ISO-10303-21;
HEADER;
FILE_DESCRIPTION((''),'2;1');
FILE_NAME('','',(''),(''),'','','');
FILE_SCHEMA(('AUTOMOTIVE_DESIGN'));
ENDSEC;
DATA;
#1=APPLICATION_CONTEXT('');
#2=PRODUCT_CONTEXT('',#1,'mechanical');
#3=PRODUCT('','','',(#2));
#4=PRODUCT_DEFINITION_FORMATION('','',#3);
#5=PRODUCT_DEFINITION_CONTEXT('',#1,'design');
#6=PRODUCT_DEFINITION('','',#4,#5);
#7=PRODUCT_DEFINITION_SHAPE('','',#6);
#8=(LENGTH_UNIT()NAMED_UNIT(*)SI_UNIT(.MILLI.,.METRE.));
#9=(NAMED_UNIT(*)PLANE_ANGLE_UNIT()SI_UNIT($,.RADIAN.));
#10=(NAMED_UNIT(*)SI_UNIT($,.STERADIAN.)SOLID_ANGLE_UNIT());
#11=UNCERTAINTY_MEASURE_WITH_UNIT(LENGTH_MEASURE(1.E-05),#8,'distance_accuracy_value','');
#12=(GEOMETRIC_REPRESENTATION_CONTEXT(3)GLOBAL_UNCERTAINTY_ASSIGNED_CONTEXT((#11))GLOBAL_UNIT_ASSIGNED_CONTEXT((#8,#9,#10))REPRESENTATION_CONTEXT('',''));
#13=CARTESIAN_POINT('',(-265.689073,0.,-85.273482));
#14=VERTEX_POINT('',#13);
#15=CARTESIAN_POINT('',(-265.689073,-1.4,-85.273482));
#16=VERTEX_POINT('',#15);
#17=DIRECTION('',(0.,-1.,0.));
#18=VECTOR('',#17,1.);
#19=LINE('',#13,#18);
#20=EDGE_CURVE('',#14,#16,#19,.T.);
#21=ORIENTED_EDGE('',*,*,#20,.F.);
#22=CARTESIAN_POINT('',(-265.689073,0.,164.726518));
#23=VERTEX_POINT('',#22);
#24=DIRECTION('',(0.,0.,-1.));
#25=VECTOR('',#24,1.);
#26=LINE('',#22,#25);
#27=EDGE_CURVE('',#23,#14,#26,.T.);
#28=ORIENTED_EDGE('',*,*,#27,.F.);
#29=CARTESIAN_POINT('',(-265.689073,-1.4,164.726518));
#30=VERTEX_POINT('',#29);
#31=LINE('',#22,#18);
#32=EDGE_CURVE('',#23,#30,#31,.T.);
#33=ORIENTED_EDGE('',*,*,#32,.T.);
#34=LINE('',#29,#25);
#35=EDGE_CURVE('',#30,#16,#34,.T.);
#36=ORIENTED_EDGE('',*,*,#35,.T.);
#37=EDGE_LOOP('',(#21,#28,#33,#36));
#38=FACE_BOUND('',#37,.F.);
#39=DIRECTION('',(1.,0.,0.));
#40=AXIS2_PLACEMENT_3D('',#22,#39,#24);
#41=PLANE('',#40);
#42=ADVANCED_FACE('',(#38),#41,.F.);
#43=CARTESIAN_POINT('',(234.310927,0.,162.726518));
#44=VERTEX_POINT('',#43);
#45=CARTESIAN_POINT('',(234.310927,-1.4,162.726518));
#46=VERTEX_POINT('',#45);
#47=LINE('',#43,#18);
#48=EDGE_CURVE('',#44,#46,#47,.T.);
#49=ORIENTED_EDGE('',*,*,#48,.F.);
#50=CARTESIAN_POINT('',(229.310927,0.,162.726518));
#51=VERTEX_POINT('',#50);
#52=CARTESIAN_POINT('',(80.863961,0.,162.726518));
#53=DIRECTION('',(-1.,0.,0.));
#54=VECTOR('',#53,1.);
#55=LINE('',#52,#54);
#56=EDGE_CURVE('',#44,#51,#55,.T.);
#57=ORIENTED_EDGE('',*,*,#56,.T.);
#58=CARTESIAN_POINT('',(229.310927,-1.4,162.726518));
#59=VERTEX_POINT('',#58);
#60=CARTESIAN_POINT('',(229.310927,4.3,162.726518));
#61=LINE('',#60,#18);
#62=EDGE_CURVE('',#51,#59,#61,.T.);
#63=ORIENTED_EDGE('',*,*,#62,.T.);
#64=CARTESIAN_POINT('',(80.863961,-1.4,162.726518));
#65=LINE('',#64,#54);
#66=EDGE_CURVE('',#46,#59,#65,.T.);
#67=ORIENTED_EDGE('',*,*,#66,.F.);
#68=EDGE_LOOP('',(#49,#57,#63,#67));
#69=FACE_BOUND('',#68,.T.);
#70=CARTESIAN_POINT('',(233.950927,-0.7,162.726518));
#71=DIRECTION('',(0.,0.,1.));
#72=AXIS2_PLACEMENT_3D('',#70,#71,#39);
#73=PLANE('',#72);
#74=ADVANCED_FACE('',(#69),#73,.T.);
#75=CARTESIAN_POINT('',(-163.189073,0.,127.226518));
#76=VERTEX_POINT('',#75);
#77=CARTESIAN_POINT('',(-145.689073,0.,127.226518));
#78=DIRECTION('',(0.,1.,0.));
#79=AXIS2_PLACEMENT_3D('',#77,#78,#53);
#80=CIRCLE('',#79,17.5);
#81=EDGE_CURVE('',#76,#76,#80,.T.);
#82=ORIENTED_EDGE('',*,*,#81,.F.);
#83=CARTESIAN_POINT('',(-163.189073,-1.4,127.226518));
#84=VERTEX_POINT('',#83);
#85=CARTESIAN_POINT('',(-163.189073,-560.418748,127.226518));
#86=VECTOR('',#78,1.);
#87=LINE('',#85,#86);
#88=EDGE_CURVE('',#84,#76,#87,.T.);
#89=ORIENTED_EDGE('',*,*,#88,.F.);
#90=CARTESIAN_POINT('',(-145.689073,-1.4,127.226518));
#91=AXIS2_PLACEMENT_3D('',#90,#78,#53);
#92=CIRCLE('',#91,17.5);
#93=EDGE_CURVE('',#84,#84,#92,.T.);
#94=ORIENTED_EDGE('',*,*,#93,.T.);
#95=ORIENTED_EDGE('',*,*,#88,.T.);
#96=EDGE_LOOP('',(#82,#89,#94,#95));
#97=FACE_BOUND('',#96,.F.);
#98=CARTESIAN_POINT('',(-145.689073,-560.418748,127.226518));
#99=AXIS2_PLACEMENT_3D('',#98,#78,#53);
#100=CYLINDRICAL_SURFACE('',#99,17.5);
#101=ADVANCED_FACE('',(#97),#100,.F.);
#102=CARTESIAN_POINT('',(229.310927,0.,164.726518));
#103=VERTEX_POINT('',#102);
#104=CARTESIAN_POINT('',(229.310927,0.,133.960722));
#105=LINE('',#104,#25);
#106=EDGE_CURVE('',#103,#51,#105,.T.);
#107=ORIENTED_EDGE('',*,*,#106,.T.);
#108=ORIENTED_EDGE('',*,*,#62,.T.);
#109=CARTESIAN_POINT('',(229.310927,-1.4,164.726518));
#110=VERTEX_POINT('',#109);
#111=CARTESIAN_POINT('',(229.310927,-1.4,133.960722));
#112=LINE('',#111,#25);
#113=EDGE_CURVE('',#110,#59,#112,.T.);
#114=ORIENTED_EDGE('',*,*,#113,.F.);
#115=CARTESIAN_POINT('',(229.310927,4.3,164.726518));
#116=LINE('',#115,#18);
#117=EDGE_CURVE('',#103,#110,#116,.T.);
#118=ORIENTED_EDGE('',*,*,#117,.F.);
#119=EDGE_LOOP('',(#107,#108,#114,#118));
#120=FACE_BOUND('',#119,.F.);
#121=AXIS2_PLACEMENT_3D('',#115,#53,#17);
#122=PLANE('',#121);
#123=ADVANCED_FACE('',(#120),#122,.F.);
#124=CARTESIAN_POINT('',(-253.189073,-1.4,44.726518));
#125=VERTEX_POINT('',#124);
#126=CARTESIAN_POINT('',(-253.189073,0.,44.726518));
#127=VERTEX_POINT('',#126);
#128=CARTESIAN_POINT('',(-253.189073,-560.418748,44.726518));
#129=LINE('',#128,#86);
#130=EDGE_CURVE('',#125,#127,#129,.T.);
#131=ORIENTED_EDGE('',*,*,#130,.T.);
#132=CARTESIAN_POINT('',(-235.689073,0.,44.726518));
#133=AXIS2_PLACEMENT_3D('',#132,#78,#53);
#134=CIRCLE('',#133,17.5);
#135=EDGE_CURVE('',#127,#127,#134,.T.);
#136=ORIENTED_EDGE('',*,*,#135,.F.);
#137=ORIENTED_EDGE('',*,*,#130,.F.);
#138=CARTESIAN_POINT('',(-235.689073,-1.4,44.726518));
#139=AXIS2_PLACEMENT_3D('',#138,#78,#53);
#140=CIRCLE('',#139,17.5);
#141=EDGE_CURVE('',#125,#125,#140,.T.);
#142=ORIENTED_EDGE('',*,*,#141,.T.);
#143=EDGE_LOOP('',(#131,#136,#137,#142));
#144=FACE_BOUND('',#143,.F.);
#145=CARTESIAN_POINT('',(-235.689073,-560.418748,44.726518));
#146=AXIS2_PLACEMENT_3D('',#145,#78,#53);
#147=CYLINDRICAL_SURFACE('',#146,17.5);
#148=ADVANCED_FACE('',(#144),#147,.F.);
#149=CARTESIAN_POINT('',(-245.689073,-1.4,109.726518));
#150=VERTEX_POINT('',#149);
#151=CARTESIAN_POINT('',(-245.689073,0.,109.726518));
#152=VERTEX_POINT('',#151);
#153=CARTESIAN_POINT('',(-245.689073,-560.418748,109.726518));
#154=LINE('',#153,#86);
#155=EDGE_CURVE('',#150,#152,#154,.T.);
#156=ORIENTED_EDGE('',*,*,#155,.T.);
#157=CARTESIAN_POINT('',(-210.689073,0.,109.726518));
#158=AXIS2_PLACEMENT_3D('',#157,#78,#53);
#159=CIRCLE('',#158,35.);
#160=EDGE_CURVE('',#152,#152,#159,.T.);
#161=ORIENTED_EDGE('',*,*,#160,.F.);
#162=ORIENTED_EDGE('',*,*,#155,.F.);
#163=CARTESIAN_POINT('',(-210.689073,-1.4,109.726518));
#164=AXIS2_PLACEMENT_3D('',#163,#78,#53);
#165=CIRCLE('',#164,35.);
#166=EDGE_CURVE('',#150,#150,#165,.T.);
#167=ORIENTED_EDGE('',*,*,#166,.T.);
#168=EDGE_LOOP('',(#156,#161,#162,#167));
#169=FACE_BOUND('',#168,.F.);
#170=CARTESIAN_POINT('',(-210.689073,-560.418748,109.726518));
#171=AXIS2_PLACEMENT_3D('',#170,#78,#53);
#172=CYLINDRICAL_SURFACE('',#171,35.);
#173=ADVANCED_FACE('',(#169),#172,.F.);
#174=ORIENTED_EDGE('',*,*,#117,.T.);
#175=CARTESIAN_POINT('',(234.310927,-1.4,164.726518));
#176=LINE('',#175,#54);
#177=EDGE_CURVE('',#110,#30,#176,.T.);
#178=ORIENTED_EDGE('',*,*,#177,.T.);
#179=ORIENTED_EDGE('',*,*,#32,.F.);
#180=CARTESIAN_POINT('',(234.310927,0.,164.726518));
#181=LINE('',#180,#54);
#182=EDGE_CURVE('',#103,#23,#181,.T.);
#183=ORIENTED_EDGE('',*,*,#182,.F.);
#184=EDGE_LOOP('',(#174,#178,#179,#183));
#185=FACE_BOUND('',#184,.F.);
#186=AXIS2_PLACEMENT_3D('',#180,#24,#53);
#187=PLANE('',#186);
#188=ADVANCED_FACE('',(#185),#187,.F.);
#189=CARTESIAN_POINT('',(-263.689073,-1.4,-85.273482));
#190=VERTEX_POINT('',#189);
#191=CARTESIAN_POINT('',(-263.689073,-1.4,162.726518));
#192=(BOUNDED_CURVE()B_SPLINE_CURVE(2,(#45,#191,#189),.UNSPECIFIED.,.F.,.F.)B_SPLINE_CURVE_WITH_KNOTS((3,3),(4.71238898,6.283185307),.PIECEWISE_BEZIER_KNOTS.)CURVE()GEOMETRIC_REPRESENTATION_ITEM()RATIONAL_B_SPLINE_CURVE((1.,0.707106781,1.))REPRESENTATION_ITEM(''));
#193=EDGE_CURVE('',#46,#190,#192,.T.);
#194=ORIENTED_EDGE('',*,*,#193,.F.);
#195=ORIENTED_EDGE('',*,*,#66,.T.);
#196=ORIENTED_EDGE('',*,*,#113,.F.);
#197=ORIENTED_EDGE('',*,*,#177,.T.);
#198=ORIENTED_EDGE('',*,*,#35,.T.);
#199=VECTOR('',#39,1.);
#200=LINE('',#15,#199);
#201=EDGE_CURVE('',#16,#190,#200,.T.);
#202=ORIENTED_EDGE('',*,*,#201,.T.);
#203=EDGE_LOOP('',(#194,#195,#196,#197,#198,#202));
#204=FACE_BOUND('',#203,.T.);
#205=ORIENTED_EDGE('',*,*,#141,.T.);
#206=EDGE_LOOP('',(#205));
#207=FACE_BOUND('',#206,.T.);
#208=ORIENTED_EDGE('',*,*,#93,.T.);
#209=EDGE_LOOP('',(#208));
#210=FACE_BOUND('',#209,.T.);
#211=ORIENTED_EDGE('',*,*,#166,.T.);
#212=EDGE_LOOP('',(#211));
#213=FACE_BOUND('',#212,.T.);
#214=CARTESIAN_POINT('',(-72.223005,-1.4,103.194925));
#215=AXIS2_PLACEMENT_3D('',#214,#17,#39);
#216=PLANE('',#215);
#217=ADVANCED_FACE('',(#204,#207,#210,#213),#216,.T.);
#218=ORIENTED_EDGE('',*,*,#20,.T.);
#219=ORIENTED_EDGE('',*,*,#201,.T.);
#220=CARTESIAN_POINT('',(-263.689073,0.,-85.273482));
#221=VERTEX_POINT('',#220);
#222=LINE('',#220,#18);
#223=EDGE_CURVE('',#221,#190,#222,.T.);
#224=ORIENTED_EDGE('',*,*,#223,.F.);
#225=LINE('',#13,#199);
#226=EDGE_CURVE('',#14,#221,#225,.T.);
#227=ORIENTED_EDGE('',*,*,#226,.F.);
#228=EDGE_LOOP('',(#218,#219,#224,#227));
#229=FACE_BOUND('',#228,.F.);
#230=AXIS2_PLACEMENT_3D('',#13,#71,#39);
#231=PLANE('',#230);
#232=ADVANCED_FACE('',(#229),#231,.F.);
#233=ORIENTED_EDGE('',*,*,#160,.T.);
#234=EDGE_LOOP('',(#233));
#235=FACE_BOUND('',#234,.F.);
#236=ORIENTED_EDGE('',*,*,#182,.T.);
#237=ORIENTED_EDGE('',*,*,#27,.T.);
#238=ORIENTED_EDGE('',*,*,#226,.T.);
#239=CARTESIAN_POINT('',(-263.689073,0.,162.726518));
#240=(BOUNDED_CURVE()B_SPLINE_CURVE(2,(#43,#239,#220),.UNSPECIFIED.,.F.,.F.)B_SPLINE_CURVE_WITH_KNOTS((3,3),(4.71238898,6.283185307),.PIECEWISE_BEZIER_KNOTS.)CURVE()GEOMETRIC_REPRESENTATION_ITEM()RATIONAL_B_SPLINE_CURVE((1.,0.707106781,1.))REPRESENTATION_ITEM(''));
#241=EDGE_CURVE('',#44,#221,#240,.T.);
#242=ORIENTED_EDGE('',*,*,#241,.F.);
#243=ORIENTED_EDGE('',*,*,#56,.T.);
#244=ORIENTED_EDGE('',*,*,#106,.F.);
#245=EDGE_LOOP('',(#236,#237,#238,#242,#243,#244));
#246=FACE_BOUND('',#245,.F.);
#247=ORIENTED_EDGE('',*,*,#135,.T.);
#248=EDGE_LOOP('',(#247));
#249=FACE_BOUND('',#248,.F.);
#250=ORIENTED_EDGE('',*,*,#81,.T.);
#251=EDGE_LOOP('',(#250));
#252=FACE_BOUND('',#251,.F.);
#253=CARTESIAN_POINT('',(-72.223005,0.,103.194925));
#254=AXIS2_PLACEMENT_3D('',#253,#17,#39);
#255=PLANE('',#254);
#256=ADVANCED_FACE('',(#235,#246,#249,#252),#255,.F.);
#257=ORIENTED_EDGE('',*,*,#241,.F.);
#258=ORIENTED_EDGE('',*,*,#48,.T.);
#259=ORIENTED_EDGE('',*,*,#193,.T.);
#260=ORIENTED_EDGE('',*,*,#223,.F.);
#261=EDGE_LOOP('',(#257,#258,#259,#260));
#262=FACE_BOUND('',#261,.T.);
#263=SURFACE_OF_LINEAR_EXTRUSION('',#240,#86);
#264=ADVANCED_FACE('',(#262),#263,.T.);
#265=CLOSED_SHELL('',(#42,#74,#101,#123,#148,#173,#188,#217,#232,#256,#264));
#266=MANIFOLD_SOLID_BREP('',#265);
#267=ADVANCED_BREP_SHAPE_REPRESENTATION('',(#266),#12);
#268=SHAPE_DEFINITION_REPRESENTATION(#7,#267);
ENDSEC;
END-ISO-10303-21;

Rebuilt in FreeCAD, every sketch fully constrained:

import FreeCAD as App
import Part
import Sketcher

V = App.Vector
Q = App.Units.Quantity

doc = App.newDocument("Part")
body = doc.addObject("PartDesign::Body", "Body")

# Sketch on XZ plane
sketch1 = doc.addObject("Sketcher::SketchObject", "Sketch")
body.addObject(sketch1)
sketch1.AttachmentSupport = (doc.XZ_Plane, [""])
sketch1.MapMode = "FlatFace"
sketch1.addGeometry([
    Part.LineSegment(V(234.310927, 164.726518, 0), V(-265.689073, 164.726518, 0)),  # 0
    Part.LineSegment(V(-265.689073, 164.726518, 0), V(-265.689073, -85.273482, 0)),  # 1
    Part.LineSegment(V(-265.689073, -85.273482, 0), V(-263.689073, -85.273482, 0)),  # 2
    Part.BSplineCurve([V(234.310927, 162.726518, 0), V(-263.689073, 162.726518, 0), V(-263.689073, -85.273482, 0)], [3, 3], [4.71238898, 6.283185307], False, 2, [1, 0.707106781, 1], False),  # 3
    Part.LineSegment(V(234.310927, 162.726518, 0), V(234.310927, 164.726518, 0)),  # 4
], False)
sketch1.addConstraint([
    Sketcher.Constraint("Block", 3),
    Sketcher.Constraint("Coincident", 0, 2, 1, 1),
    Sketcher.Constraint("Coincident", 1, 2, 2, 1),
    Sketcher.Constraint("Coincident", 2, 2, 3, 2),
    Sketcher.Constraint("Coincident", 3, 1, 4, 1),
    Sketcher.Constraint("Coincident", 4, 2, 0, 1),
    Sketcher.Constraint("Horizontal", 0),
    Sketcher.Constraint("Vertical", 1),
    Sketcher.Constraint("Horizontal", 2),
    Sketcher.Constraint("Vertical", 4),
    Sketcher.Constraint("DistanceX", 0, 2, 0, 1, Q("500 mm")),
    Sketcher.Constraint("DistanceY", 1, 2, 1, 1, Q("250 mm")),
])
pad1 = doc.addObject("PartDesign::Pad", "Pad")
body.addObject(pad1)
pad1.Profile = sketch1
pad1.Length = 1.4

# Sketch on XZ plane
sketch2 = doc.addObject("Sketcher::SketchObject", "Sketch001")
body.addObject(sketch2)
sketch2.AttachmentSupport = (doc.XZ_Plane, [""])
sketch2.MapMode = "FlatFace"
sketch2.AttachmentOffset = App.Placement(V(0, 0, 1.4), App.Rotation())
sketch2.addGeometry(Part.Circle(V(-211, 110, 0), V(0, 0, 1), 35), False)
sketch2.addConstraint([
    Sketcher.Constraint("Diameter", 0, Q("70 mm")),
    Sketcher.Constraint("DistanceY", -1, 1, 0, 3, Q("109.726518 mm")),
    Sketcher.Constraint("DistanceX", 0, 3, -1, 1, Q("210.689073 mm")),
])
doc.recompute()
hole = doc.addObject("PartDesign::Hole", "Hole")
body.addObject(hole)
hole.Profile = sketch2
hole.ThreadType = "None"
hole.Diameter = 70
hole.DepthType = "ThroughAll"

# Sketch on XZ plane
sketch3 = doc.addObject("Sketcher::SketchObject", "Sketch002")
body.addObject(sketch3)
sketch3.AttachmentSupport = (doc.XZ_Plane, [""])
sketch3.MapMode = "FlatFace"
sketch3.AttachmentOffset = App.Placement(V(0, 0, 1.4), App.Rotation())
sketch3.addGeometry([
    Part.Circle(V(-146, 127, 0), V(0, 0, 1), 18),
    Part.Circle(V(-236, 45, 0), V(0, 0, 1), 18),
], False)
sketch3.addConstraint([
    Sketcher.Constraint("Equal", 0, 1),
    Sketcher.Constraint("Diameter", 0, Q("35 mm")),
    Sketcher.Constraint("DistanceX", 1, 3, 0, 3, Q("90 mm")),
    Sketcher.Constraint("DistanceY", 1, 3, 0, 3, Q("82.5 mm")),
    Sketcher.Constraint("DistanceY", -1, 1, 0, 3, Q("127.226518 mm")),
    Sketcher.Constraint("DistanceX", 0, 3, -1, 1, Q("145.689073 mm")),
])
doc.recompute()
hole2 = doc.addObject("PartDesign::Hole", "Hole001")
body.addObject(hole2)
hole2.Profile = sketch3
hole2.ThreadType = "None"
hole2.Diameter = 35
hole2.DepthType = "ThroughAll"

# Sketch on XY plane
sketch4 = doc.addObject("Sketcher::SketchObject", "Sketch003")
body.addObject(sketch4)
sketch4.AttachmentSupport = (doc.XY_Plane, [""])
sketch4.MapMode = "FlatFace"
sketch4.AttachmentOffset = App.Placement(V(0, 0, 164.726518), App.Rotation())
sketch4.addGeometry([
    Part.LineSegment(V(239, -6, 0), V(239, 4, 0)),
    Part.LineSegment(V(239, 4, 0), V(229, 4, 0)),
    Part.LineSegment(V(229, 4, 0), V(229, -6, 0)),
    Part.LineSegment(V(229, -6, 0), V(239, -6, 0)),
], False)
sketch4.addConstraint([
    Sketcher.Constraint("Coincident", 0, 2, 1, 1),
    Sketcher.Constraint("Coincident", 1, 2, 2, 1),
    Sketcher.Constraint("Coincident", 2, 2, 3, 1),
    Sketcher.Constraint("Coincident", 3, 2, 0, 1),
    Sketcher.Constraint("Vertical", 0),
    Sketcher.Constraint("Horizontal", 1),
    Sketcher.Constraint("Vertical", 2),
    Sketcher.Constraint("Horizontal", 3),
    Sketcher.Constraint("Equal", 3, 0),
    Sketcher.Constraint("DistanceX", 1, 2, 1, 1, Q("10 mm")),
    Sketcher.Constraint("DistanceY", -1, 1, 0, 2, Q("4.3 mm")),
    Sketcher.Constraint("DistanceX", -1, 1, 0, 2, Q("239.310927 mm")),
])
pocket1 = doc.addObject("PartDesign::Pocket", "Pocket")
body.addObject(pocket1)
pocket1.Profile = sketch4
pocket1.Length = 2

doc.recompute()
